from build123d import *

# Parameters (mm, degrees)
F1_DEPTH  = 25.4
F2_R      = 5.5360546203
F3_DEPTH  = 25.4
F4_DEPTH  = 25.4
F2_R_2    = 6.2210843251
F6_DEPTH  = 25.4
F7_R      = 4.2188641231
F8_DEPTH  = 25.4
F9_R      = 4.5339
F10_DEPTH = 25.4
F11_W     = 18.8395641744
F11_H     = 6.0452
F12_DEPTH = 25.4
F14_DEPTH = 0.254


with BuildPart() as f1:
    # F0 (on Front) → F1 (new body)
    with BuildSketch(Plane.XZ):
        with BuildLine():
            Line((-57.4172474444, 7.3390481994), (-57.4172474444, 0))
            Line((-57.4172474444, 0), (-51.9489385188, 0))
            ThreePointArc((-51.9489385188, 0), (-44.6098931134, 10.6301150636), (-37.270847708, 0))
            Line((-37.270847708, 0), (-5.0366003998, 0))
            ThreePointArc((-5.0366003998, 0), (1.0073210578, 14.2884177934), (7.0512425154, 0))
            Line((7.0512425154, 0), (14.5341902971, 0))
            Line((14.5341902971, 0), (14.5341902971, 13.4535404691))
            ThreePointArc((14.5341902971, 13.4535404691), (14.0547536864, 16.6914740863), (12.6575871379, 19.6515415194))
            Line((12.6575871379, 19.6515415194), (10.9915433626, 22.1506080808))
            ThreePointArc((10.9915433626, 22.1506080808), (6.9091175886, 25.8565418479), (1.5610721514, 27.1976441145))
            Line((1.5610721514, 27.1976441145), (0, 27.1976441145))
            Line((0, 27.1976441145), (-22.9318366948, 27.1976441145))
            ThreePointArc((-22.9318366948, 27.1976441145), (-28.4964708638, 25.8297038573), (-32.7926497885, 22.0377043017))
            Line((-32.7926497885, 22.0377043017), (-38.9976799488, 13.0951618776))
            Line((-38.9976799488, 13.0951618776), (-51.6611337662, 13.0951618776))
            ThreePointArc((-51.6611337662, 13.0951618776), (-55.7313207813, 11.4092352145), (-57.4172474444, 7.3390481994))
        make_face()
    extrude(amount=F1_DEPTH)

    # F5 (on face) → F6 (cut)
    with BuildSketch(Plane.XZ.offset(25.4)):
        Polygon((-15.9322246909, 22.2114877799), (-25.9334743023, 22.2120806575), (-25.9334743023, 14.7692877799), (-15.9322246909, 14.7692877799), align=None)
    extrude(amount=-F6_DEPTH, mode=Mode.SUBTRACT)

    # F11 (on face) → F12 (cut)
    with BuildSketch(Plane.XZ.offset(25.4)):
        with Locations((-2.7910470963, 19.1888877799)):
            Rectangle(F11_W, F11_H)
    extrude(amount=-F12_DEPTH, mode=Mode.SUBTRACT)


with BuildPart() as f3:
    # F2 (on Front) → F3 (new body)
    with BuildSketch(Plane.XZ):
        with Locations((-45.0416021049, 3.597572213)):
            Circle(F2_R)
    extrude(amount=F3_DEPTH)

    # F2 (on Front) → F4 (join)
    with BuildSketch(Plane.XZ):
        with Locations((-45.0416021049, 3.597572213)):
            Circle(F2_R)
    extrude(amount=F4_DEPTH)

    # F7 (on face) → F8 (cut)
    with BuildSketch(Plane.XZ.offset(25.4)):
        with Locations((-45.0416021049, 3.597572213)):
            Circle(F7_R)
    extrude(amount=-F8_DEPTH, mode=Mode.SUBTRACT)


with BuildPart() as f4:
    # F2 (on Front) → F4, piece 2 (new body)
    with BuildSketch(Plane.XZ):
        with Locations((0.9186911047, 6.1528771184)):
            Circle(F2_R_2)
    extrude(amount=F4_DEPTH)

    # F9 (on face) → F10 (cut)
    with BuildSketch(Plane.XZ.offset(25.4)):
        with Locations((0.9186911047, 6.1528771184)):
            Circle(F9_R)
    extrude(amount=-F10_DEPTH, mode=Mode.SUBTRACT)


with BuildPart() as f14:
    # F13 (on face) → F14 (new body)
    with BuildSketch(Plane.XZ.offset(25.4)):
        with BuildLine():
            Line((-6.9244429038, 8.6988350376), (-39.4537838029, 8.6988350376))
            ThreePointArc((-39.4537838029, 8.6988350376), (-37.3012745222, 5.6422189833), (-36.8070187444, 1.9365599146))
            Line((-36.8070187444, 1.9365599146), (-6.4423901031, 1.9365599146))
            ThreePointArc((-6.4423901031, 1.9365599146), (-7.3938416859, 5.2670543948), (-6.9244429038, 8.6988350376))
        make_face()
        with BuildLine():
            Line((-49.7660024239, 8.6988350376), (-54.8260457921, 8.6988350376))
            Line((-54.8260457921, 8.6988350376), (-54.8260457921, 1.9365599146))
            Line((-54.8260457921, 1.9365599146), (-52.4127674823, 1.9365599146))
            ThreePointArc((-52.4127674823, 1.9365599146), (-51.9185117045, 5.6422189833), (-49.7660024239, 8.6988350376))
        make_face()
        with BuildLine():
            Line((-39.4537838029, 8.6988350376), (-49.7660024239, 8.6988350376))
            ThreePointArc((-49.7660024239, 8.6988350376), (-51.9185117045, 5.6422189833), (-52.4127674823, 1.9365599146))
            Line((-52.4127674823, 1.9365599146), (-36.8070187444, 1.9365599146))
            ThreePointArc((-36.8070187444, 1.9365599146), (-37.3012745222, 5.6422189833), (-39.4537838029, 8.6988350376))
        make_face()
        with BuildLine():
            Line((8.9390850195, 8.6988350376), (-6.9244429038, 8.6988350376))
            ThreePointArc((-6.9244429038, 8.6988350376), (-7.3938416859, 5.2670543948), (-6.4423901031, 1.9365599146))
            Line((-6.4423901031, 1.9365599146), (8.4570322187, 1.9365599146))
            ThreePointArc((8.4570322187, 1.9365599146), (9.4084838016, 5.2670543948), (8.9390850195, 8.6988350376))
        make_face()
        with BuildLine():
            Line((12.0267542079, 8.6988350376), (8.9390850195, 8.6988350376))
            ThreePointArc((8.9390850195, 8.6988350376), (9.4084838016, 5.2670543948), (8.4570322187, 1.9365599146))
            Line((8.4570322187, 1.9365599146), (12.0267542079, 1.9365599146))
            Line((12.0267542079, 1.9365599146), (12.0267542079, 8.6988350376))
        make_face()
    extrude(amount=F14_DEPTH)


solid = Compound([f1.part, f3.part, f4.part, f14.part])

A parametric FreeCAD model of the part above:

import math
import FreeCAD as App
import Part
import Sketcher

V = App.Vector
Q = App.Units.Quantity


def add_polygon(sketch, points):
    """Adds a closed chain of lines whose ends are joined by coincident constraints."""
    first, n = sketch.GeometryCount, len(points)
    for a, b in zip(points, points[1:] + points[:1]):
        sketch.addGeometry(Part.LineSegment(App.Vector(*a, 0), App.Vector(*b, 0)), False)
    for i in range(n):
        sketch.addConstraint(Sketcher.Constraint("Coincident", first + i, 2, first + (i + 1) % n, 1))

doc = App.newDocument("Part")
params = doc.addObject("Spreadsheet::Sheet", "Params")
for row, (alias, value) in enumerate([
    ("pad1_length", "1 in"),
    ("sketch2_height", "0.293 in"),
    ("pocket1_length", "1 in"),
    ("sketch3_height", "0.238 in"),
    ("pocket2_length", "1 in"),
    ("pad2_length", "1 in"),
    ("pad3_length", "1 in"),
    ("pocket3_length", "1 in"),
    ("pad4_length", "1 in"),
    ("sketch8_diameter", "0.357 in"),
    ("pocket4_length", "1 in"),
    ("sketch9_width", "2.632 in"),
    ("pad5_length", "0.01 in"),
], start=1):
    params.set(f"A{row}", alias)
    params.set(f"B{row}", "=" + value)
    params.setAlias(f"B{row}", alias)

body = doc.addObject("PartDesign::Body", "Body")

sketch1 = body.newObject("Sketcher::SketchObject", "Sketch")
sketch1.AttachmentSupport = (doc.getObject("XZ_Plane"), [""])
sketch1.MapMode = "FlatFace"
sketch1.addGeometry(Part.LineSegment(V(-57.4, 7.3, 0), V(-57.4, 0, 0)), False)
sketch1.addGeometry(Part.LineSegment(V(-57.4, 0, 0), V(-51.9, 0, 0)), False)
sketch1.addGeometry(Part.ArcOfCircle(Part.Circle(V(-44.6, 2.8, 0), V(0, 0, 1), 7.8), math.radians(-21), math.radians(201)), False)
sketch1.addGeometry(Part.LineSegment(V(-37.3, 0, 0), V(-5, 0, 0)), False)
sketch1.addGeometry(Part.ArcOfCircle(Part.Circle(V(1, 5.9, 0), V(0, 0, 1), 8.4), math.radians(-44), math.radians(224)), False)
sketch1.addGeometry(Part.LineSegment(V(7.1, 0, 0), V(14.5, 0, 0)), False)
sketch1.addGeometry(Part.LineSegment(V(14.5, 0, 0), V(14.5, 13.5, 0)), False)
sketch1.addGeometry(Part.ArcOfCircle(Part.Circle(V(3.4, 13.5, 0), V(0, 0, 1), 11.2), math.radians(0), math.radians(34)), False)
sketch1.addGeometry(Part.LineSegment(V(12.7, 19.7, 0), V(11, 22.2, 0)), False)
sketch1.addGeometry(Part.ArcOfCircle(Part.Circle(V(1.6, 15.9, 0), V(0, 0, 1), 11.3), math.radians(34), math.radians(90)), False)
sketch1.addGeometry(Part.LineSegment(V(1.6, 27.2, 0), V(-22.9, 27.2, 0)), False)
sketch1.addGeometry(Part.ArcOfCircle(Part.Circle(V(-22.9, 15.2, 0), V(0, 0, 1), 12), math.radians(90), math.radians(145)), False)
sketch1.addGeometry(Part.LineSegment(V(-32.8, 22, 0), V(-39, 13.1, 0)), False)
sketch1.addGeometry(Part.LineSegment(V(-39, 13.1, 0), V(-51.7, 13.1, 0)), False)
sketch1.addGeometry(Part.ArcOfCircle(Part.Circle(V(-51.7, 7.3, 0), V(0, 0, 1), 5.8), math.radians(90), math.radians(180)), False)
sketch1.addConstraint(Sketcher.Constraint("Coincident", 0, 2, 1, 1))
sketch1.addConstraint(Sketcher.Constraint("Coincident", 1, 2, 2, 2))
sketch1.addConstraint(Sketcher.Constraint("Coincident", 2, 1, 3, 1))
sketch1.addConstraint(Sketcher.Constraint("Coincident", 3, 2, 4, 2))
sketch1.addConstraint(Sketcher.Constraint("Coincident", 4, 1, 5, 1))
sketch1.addConstraint(Sketcher.Constraint("Coincident", 5, 2, 6, 1))
sketch1.addConstraint(Sketcher.Constraint("Tangent", 6, 2, 7, 1))
sketch1.addConstraint(Sketcher.Constraint("Tangent", 7, 2, 8, 1))
sketch1.addConstraint(Sketcher.Constraint("Tangent", 8, 2, 9, 1))
sketch1.addConstraint(Sketcher.Constraint("Tangent", 9, 2, 10, 1))
sketch1.addConstraint(Sketcher.Constraint("Tangent", 10, 2, 11, 1))
sketch1.addConstraint(Sketcher.Constraint("Tangent", 11, 2, 12, 1))
sketch1.addConstraint(Sketcher.Constraint("Coincident", 12, 2, 13, 1))
sketch1.addConstraint(Sketcher.Constraint("Tangent", 13, 2, 14, 1))
sketch1.addConstraint(Sketcher.Constraint("Tangent", 14, 2, 0, 1))
sketch1.addConstraint(Sketcher.Constraint("Vertical", 0))
sketch1.addConstraint(Sketcher.Constraint("Horizontal", 1))
sketch1.addConstraint(Sketcher.Constraint("Horizontal", 3))
sketch1.addConstraint(Sketcher.Constraint("Horizontal", 5))
sketch1.addConstraint(Sketcher.Constraint("Vertical", 6))
sketch1.addConstraint(Sketcher.Constraint("Horizontal", 10))
sketch1.addConstraint(Sketcher.Constraint("Horizontal", 13))
sketch1.addConstraint(Sketcher.Constraint("PointOnObject", 0, 2, -1))
sketch1.addConstraint(Sketcher.Constraint("PointOnObject", 2, 1, -1))
sketch1.addConstraint(Sketcher.Constraint("PointOnObject", 4, 1, -1))
sketch1.addConstraint(Sketcher.Constraint("Radius", 2, 7.848501))
sketch1.addConstraint(Sketcher.Constraint("Radius", 4, 8.422482))
sketch1.addConstraint(Sketcher.Constraint("Radius", 7, 11.173608))
sketch1.addConstraint(Sketcher.Constraint("Radius", 9, 11.334015))
sketch1.addConstraint(Sketcher.Constraint("Radius", 11, 12.002137))
sketch1.addConstraint(Sketcher.Constraint("Radius", 14, 5.756114))
sketch1.addConstraint(Sketcher.Constraint("DistanceX", 1, 1, 1, 2, 5.468309))
sketch1.addConstraint(Sketcher.Constraint("DistanceX", 10, 2, 10, 1, 24.492909))
sketch1.addConstraint(Sketcher.Constraint("DistanceY", 0, 2, 0, 1, 7.339048))
sketch1.addConstraint(Sketcher.Constraint("DistanceY", 6, 1, 6, 2, 13.45354))
sketch1.addConstraint(Sketcher.Constraint("DistanceX", 3, 2, -1, 1, 5.0366))
sketch1.addConstraint(Sketcher.Constraint("DistanceX", 1, 2, 11, 3, 29.017102))
sketch1.addConstraint(Sketcher.Constraint("DistanceX", 0, 2, 2, 1, 20.1464))
sketch1.addConstraint(Sketcher.Constraint("DistanceY", 6, 2, 7, 2, 6.198001))
sketch1.addConstraint(Sketcher.Constraint("Distance", 12, 10.88446))
sketch1.addConstraint(Sketcher.Constraint("DistanceX", 3, 1, 3, 2, 32.234247))
sketch1.addConstraint(Sketcher.Constraint("DistanceX", 5, 1, 5, 2, 7.482948))
sketch1.addConstraint(Sketcher.Constraint("DistanceX", 13, 2, 13, 1, 12.663454))
pad1 = body.newObject("PartDesign::Pad", "Pad")
pad1.Profile = sketch1
pad1.setExpression("Length", "Params.pad1_length")

sketch2 = body.newObject("Sketcher::SketchObject", "Sketch001")
sketch2.AttachmentSupport = (doc.getObject("XZ_Plane"), [""])
sketch2.MapMode = "FlatFace"
sketch2.AttachmentOffset = App.Placement(V(0, 0, 1 * 25.4), App.Rotation())
add_polygon(sketch2, [(-16, 22), (-26, 22), (-26, 15), (-16, 15)])
sketch2.addConstraint(Sketcher.Constraint("Vertical", 1))
sketch2.addConstraint(Sketcher.Constraint("Horizontal", 2))
sketch2.addConstraint(Sketcher.Constraint("Vertical", 3))
sketch2.addConstraint(Sketcher.Constraint("DistanceY", 3, 1, 3, 2, Q("0.293 in")))
sketch2.addConstraint(Sketcher.Constraint("DistanceX", 2, 1, 2, 2, 10.00125))
sketch2.addConstraint(Sketcher.Constraint("DistanceY", 1, 2, 1, 1, 7.442793))
sketch2.addConstraint(Sketcher.Constraint("DistanceY", -1, 1, 0, 2, 22.212081))
sketch2.addConstraint(Sketcher.Constraint("DistanceX", 0, 2, -1, 1, 25.933474))
sketch2.setExpression("Constraints[7]", "Params.sketch2_height")
pocket1 = body.newObject("PartDesign::Pocket", "Pocket")
pocket1.Profile = sketch2
pocket1.setExpression("Length", "Params.pocket1_length")

sketch3 = body.newObject("Sketcher::SketchObject", "Sketch002")
sketch3.AttachmentSupport = (doc.getObject("XZ_Plane"), [""])
sketch3.MapMode = "FlatFace"
sketch3.AttachmentOffset = App.Placement(V(0, 0, 1 * 25.4), App.Rotation())
add_polygon(sketch3, [(-12, 22), (-12, 16), (7, 16), (7, 22)])
sketch3.addConstraint(Sketcher.Constraint("Vertical", 0))
sketch3.addConstraint(Sketcher.Constraint("Horizontal", 1))
sketch3.addConstraint(Sketcher.Constraint("Vertical", 2))
sketch3.addConstraint(Sketcher.Constraint("Horizontal", 3))
sketch3.addConstraint(Sketcher.Constraint("DistanceY", 0, 2, 0, 1, Q("0.238 in")))
sketch3.addConstraint(Sketcher.Constraint("DistanceX", 1, 1, 1, 2, 18.839564))
sketch3.addConstraint(Sketcher.Constraint("DistanceX", 0, 2, -1, 1, 12.210829))
sketch3.addConstraint(Sketcher.Constraint("DistanceY", -1, 1, 0, 2, 16.166288))
sketch3.setExpression("Constraints[8]", "Params.sketch3_height")
pocket2 = body.newObject("PartDesign::Pocket", "Pocket001")
pocket2.Profile = sketch3
pocket2.setExpression("Length", "Params.pocket2_length")
body2 = doc.addObject("PartDesign::Body", "Body001")

sketch4 = body2.newObject("Sketcher::SketchObject", "Sketch003")
sketch4.AttachmentSupport = (doc.getObject("XZ_Plane001"), [""])
sketch4.MapMode = "FlatFace"
sketch4.addGeometry(Part.Circle(V(-45, 4, 0), V(0, 0, 1), 6), False)
sketch4.addConstraint(Sketcher.Constraint("Diameter", 0, 11.072109))
sketch4.addConstraint(Sketcher.Constraint("DistanceX", 0, 3, -1, 1, 45.041602))
sketch4.addConstraint(Sketcher.Constraint("DistanceY", -1, 1, 0, 3, 3.597572))
pad2 = body2.newObject("PartDesign::Pad", "Pad001")
pad2.Profile = sketch4
pad2.setExpression("Length", "Params.pad2_length")

sketch5 = body2.newObject("Sketcher::SketchObject", "Sketch004")
sketch5.AttachmentSupport = (doc.getObject("XZ_Plane001"), [""])
sketch5.MapMode = "FlatFace"
sketch5.addGeometry(Part.Circle(V(-45, 4, 0), V(0, 0, 1), 6), False)
sketch5.addConstraint(Sketcher.Constraint("Diameter", 0, 11.072109))
sketch5.addConstraint(Sketcher.Constraint("DistanceX", 0, 3, -1, 1, 45.041602))
sketch5.addConstraint(Sketcher.Constraint("DistanceY", -1, 1, 0, 3, 3.597572))
pad3 = body2.newObject("PartDesign::Pad", "Pad002")
pad3.Profile = sketch5
pad3.setExpression("Length", "Params.pad3_length")

sketch6 = body2.newObject("Sketcher::SketchObject", "Sketch005")
sketch6.AttachmentSupport = (doc.getObject("XZ_Plane001"), [""])
sketch6.MapMode = "FlatFace"
sketch6.AttachmentOffset = App.Placement(V(0, 0, 1 * 25.4), App.Rotation())
sketch6.addGeometry(Part.Circle(V(-45, 3.6, 0), V(0, 0, 1), 4.2), False)
sketch6.addConstraint(Sketcher.Constraint("Diameter", 0, 8.437728))
sketch6.addConstraint(Sketcher.Constraint("DistanceX", 0, 3, -1, 1, 45.041602))
sketch6.addConstraint(Sketcher.Constraint("DistanceY", -1, 1, 0, 3, 3.597572))
pocket3 = body2.newObject("PartDesign::Pocket", "Pocket002")
pocket3.Profile = sketch6
pocket3.setExpression("Length", "Params.pocket3_length")
body3 = doc.addObject("PartDesign::Body", "Body002")

sketch7 = body3.newObject("Sketcher::SketchObject", "Sketch006")
sketch7.AttachmentSupport = (doc.getObject("XZ_Plane002"), [""])
sketch7.MapMode = "FlatFace"
sketch7.addGeometry(Part.Circle(V(1, 6, 0), V(0, 0, 1), 6), False)
sketch7.addConstraint(Sketcher.Constraint("Diameter", 0, 12.442169))
sketch7.addConstraint(Sketcher.Constraint("DistanceX", -1, 1, 0, 3, 0.918691))
sketch7.addConstraint(Sketcher.Constraint("DistanceY", -1, 1, 0, 3, 6.152877))
pad4 = body3.newObject("PartDesign::Pad", "Pad003")
pad4.Profile = sketch7
pad4.setExpression("Length", "Params.pad4_length")

sketch8 = body3.newObject("Sketcher::SketchObject", "Sketch007")
sketch8.AttachmentSupport = (doc.getObject("XZ_Plane002"), [""])
sketch8.MapMode = "FlatFace"
sketch8.AttachmentOffset = App.Placement(V(0, 0, 1 * 25.4), App.Rotation())
sketch8.addGeometry(Part.Circle(V(0.9, 6.2, 0), V(0, 0, 1), 4.5), False)
sketch8.addConstraint(Sketcher.Constraint("Diameter", 0, Q("0.357 in")))
sketch8.addConstraint(Sketcher.Constraint("DistanceX", -1, 1, 0, 3, 0.918691))
sketch8.addConstraint(Sketcher.Constraint("DistanceY", -1, 1, 0, 3, 6.152877))
sketch8.setExpression("Constraints[0]", "Params.sketch8_diameter")
pocket4 = body3.newObject("PartDesign::Pocket", "Pocket003")
pocket4.Profile = sketch8
pocket4.setExpression("Length", "Params.pocket4_length")
body4 = doc.addObject("PartDesign::Body", "Body003")

sketch9 = body4.newObject("Sketcher::SketchObject", "Sketch008")
sketch9.AttachmentSupport = (doc.getObject("XZ_Plane003"), [""])
sketch9.MapMode = "FlatFace"
sketch9.AttachmentOffset = App.Placement(V(0, 0, 1 * 25.4), App.Rotation())
add_polygon(sketch9, [(-55, 9), (-55, 2), (12, 2), (12, 9)])
sketch9.addConstraint(Sketcher.Constraint("Vertical", 0))
sketch9.addConstraint(Sketcher.Constraint("Horizontal", 1))
sketch9.addConstraint(Sketcher.Constraint("Vertical", 2))
sketch9.addConstraint(Sketcher.Constraint("Horizontal", 3))
sketch9.addConstraint(Sketcher.Constraint("DistanceX", 1, 1, 1, 2, Q("2.632 in")))
sketch9.addConstraint(Sketcher.Constraint("DistanceY", 0, 2, 0, 1, 6.762275))
sketch9.addConstraint(Sketcher.Constraint("DistanceY", -1, 1, 0, 2, 1.93656))
sketch9.addConstraint(Sketcher.Constraint("DistanceX", 0, 2, -1, 1, 54.826046))
sketch9.setExpression("Constraints[8]", "Params.sketch9_width")
pad5 = body4.newObject("PartDesign::Pad", "Pad004")
pad5.Profile = sketch9
pad5.setExpression("Length", "Params.pad5_length")

doc.recompute()
